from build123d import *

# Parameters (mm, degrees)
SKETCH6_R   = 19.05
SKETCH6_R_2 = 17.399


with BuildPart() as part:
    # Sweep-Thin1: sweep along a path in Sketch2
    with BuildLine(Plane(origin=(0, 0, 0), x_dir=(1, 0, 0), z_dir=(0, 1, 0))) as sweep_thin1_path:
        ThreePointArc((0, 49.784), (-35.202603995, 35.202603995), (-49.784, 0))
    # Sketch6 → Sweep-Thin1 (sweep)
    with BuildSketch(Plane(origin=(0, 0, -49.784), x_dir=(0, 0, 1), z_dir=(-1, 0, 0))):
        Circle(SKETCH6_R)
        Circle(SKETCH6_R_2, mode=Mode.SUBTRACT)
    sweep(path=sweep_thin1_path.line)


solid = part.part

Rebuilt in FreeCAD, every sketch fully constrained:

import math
import FreeCAD as App
import Part
import Sketcher
from FreeCAD import Vector
Q = App.Units.Quantity

doc = App.newDocument("Part")
params = doc.addObject("Spreadsheet::Sheet", "Params")
for row, (alias, value) in enumerate([
    ("sketch1_diameter", "1.5 in"),
    ("sketch1_diameter2", "1.37 in"),
    ("sketch2_radius", "1.96 in"),
], start=1):
    params.set(f"A{row}", alias)
    params.set(f"B{row}", "=" + value)
    params.setAlias(f"B{row}", alias)

body = doc.addObject("PartDesign::Body", "Body")

# Sketch on YZ plane
sketch1 = body.newObject("Sketcher::SketchObject", "Sketch")
sketch1.AttachmentSupport = (doc.getObject("YZ_Plane"), [""])
sketch1.MapMode = "FlatFace"
sketch1.addGeometry(Part.Circle(Vector(0, -50, 0), Vector(0, 0, 1), 19), False)
sketch1.addGeometry(Part.Circle(Vector(0, -50, 0), Vector(0, 0, 1), 17), False)
sketch1.addConstraint(Sketcher.Constraint("Coincident", 1, 3, 0, 3))
sketch1.addConstraint(Sketcher.Constraint("PointOnObject", 0, 3, -2))
sketch1.addConstraint(Sketcher.Constraint("Diameter", 0, Q("1.5 in")))
sketch1.addConstraint(Sketcher.Constraint("Diameter", 1, Q("1.37 in")))
sketch1.addConstraint(Sketcher.Constraint("DistanceY", 0, 3, -1, 1, Q("1.96 in")))
sketch1.setExpression("Constraints[2]", "Params.sketch1_diameter")
sketch1.setExpression("Constraints[3]", "Params.sketch1_diameter2")

# Sketch on XZ plane
sketch2 = body.newObject("Sketcher::SketchObject", "Sketch001")
sketch2.AttachmentSupport = (doc.getObject("XZ_Plane"), [""])
sketch2.MapMode = "FlatFace"
sketch2.addGeometry(Part.ArcOfCircle(Part.Circle(Vector(0, 0, 0), Vector(0, 0, 1), 50), math.radians(180), math.radians(270)), False)
sketch2.addConstraint(Sketcher.Constraint("Coincident", 0, 3, -1, 1))
sketch2.addConstraint(Sketcher.Constraint("PointOnObject", 0, 1, -1))
sketch2.addConstraint(Sketcher.Constraint("PointOnObject", 0, 2, -2))
sketch2.addConstraint(Sketcher.Constraint("Radius", 0, Q("1.96 in")))
sketch2.setExpression("Constraints[3]", "Params.sketch2_radius")
doc.recompute()

additivepipe = body.newObject("PartDesign::AdditivePipe", "AdditivePipe")
additivepipe.Profile = sketch1
additivepipe.Spine = (sketch2, ["Edge1"])

doc.recompute()
